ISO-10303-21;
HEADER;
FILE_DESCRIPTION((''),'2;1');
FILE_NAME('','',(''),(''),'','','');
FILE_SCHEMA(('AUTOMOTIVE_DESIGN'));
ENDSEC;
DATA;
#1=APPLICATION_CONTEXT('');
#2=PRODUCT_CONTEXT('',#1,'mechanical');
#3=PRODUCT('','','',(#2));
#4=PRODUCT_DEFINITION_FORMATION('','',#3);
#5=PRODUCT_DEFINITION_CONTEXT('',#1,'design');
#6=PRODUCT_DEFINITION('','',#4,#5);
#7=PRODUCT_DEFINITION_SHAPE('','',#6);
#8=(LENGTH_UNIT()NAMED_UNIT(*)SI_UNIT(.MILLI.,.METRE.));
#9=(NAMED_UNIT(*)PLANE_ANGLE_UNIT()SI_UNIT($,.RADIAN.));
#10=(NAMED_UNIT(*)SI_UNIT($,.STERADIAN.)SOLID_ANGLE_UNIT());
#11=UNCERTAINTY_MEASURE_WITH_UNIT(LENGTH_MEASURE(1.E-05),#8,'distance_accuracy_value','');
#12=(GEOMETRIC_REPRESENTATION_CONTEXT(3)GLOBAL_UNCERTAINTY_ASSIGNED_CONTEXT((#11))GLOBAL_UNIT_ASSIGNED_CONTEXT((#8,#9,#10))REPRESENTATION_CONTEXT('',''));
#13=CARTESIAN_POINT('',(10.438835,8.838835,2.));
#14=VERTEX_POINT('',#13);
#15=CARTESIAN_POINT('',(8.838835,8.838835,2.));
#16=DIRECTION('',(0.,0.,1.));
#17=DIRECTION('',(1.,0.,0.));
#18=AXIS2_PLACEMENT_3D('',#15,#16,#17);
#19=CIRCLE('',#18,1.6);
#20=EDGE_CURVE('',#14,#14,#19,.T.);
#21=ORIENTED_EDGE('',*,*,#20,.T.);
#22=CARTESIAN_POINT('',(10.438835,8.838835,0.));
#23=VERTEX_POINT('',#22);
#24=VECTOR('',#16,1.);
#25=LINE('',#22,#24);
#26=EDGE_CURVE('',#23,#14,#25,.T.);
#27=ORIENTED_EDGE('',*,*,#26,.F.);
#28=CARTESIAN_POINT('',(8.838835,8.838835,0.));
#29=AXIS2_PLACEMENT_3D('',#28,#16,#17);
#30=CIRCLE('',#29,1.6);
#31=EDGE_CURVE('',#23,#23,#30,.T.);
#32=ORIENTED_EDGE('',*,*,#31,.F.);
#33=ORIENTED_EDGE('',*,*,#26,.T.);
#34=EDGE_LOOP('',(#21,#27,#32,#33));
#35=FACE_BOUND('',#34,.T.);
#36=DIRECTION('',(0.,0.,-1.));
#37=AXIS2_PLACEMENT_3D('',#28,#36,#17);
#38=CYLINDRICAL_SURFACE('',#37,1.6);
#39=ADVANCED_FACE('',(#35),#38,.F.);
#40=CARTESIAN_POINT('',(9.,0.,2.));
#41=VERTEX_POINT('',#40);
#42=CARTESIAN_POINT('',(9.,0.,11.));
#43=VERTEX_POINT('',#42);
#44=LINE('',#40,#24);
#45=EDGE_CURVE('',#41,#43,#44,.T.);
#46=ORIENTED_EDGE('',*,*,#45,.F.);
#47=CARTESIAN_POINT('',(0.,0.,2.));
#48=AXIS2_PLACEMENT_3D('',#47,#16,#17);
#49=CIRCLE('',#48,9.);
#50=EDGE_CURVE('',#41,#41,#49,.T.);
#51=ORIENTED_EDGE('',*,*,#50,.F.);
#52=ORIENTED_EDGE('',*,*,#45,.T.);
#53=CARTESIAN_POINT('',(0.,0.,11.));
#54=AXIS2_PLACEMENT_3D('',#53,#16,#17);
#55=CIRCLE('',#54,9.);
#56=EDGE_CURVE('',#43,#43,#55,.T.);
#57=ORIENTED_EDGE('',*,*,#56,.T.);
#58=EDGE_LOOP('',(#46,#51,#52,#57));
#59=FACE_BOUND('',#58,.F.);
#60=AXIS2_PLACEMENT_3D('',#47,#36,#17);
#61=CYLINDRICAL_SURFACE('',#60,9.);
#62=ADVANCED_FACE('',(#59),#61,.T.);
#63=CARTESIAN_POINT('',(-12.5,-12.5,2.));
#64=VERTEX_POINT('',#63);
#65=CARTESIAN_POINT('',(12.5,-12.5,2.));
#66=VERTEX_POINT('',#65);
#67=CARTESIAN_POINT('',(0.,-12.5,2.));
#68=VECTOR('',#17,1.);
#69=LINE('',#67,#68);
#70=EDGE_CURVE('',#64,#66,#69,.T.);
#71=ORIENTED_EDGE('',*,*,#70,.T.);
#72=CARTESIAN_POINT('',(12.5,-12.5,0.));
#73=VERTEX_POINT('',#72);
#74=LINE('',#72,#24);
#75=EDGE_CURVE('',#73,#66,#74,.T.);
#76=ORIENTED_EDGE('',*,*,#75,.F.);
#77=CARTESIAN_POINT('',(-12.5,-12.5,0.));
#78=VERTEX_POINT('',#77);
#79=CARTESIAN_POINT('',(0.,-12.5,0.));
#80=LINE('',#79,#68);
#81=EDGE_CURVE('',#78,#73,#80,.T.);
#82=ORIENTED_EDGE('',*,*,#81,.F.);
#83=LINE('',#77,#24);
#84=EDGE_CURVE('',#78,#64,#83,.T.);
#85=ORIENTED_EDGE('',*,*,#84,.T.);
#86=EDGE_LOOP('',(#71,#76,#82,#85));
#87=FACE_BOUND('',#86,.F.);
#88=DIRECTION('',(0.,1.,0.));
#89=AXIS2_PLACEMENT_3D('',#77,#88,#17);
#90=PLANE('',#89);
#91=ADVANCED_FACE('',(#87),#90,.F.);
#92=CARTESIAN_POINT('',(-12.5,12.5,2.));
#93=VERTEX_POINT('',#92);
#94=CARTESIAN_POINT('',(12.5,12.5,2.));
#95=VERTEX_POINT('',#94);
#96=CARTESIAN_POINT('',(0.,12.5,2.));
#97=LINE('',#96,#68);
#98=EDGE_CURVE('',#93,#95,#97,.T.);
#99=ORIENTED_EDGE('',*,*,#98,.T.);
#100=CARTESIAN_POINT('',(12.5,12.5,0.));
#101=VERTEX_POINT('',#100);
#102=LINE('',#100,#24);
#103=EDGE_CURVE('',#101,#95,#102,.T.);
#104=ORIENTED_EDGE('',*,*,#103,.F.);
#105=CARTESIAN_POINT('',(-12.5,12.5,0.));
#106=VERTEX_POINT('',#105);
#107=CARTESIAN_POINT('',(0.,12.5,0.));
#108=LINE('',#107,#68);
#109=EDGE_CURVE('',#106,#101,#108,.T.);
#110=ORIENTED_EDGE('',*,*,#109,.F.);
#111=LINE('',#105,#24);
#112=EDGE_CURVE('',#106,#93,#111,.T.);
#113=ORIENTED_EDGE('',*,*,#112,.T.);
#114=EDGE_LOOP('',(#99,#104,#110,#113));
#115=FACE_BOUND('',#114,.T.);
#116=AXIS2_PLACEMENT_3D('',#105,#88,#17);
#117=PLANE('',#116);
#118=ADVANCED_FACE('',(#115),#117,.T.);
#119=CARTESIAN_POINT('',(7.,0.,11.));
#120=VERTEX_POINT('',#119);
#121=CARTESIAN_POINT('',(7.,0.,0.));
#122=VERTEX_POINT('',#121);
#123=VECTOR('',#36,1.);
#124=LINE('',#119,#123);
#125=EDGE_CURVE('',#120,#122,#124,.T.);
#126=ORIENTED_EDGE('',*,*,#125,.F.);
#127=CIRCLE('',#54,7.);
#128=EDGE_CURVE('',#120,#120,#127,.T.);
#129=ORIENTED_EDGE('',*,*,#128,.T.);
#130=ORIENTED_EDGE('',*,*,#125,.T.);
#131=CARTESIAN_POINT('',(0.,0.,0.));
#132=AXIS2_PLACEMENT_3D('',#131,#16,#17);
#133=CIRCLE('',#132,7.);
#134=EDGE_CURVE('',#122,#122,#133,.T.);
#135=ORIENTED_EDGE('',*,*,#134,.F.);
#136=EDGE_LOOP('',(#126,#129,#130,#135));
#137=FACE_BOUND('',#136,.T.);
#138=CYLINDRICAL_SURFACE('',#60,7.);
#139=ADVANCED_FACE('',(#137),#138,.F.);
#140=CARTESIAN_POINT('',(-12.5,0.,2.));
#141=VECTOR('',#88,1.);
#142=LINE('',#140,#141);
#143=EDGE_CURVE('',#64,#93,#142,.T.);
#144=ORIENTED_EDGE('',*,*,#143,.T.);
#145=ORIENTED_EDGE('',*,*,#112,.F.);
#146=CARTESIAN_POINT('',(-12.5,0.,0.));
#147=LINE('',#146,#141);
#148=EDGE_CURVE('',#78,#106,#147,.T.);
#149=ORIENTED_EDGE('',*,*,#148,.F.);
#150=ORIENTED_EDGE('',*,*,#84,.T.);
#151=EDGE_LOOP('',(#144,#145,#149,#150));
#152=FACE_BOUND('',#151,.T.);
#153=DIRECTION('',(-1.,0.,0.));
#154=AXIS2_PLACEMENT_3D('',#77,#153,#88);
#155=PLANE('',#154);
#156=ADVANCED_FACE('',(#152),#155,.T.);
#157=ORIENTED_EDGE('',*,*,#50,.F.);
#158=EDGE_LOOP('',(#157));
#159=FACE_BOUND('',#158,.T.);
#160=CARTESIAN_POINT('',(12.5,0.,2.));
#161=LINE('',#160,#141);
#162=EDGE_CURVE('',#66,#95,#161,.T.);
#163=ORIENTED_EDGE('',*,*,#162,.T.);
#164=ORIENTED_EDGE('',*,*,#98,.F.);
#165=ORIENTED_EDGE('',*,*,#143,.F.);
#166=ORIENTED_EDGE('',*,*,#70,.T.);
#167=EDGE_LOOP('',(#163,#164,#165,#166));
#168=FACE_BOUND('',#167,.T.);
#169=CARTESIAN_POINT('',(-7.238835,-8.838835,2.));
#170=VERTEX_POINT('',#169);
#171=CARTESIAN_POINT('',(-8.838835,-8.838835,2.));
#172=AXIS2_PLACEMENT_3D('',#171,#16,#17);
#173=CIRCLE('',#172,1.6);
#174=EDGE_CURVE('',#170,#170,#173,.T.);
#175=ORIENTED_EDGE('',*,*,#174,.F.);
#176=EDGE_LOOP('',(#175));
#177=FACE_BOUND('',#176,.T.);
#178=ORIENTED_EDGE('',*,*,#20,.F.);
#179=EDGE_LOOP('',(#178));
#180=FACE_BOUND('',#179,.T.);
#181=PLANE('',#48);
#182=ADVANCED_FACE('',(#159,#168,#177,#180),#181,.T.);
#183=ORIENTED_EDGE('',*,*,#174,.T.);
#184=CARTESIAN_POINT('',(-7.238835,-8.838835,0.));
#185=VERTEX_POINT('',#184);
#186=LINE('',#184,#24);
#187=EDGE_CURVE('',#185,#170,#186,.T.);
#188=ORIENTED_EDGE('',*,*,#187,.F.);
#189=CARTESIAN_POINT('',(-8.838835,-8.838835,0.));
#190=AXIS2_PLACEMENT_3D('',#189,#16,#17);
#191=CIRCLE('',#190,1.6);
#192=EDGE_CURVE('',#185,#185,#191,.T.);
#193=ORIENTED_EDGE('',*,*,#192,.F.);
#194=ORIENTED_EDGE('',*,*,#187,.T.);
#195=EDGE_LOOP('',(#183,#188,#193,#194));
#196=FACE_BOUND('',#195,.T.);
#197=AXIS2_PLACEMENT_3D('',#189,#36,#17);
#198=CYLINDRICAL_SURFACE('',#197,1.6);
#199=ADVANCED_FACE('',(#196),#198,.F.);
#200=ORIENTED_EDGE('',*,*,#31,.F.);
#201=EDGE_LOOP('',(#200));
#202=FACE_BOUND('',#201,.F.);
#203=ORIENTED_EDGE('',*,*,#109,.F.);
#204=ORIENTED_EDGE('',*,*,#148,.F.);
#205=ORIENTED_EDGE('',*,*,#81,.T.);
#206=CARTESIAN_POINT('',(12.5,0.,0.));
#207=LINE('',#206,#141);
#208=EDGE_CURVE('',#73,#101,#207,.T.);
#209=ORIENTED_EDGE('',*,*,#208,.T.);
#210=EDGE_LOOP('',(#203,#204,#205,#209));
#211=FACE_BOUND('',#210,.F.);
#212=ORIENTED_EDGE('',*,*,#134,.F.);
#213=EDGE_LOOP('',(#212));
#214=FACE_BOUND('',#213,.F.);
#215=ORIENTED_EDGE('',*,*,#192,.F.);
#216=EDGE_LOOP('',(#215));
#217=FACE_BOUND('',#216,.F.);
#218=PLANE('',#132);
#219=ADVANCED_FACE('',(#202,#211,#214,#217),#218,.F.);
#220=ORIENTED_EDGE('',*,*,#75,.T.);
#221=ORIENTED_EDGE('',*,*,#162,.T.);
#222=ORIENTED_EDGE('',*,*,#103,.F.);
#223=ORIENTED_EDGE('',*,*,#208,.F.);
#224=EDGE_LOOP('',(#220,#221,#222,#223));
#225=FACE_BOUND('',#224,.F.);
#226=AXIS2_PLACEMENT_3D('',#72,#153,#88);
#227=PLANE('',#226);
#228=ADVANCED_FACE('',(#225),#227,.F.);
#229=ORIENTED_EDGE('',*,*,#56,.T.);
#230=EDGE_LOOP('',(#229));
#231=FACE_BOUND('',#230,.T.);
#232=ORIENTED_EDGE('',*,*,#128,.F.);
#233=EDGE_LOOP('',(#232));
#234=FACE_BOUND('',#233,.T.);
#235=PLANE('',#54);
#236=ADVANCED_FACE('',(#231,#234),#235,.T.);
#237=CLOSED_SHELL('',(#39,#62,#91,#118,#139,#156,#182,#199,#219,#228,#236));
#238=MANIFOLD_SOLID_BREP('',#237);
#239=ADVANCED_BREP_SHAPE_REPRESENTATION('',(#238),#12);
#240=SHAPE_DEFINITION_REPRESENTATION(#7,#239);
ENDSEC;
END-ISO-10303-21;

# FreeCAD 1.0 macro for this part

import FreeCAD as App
import Part
import Sketcher
from FreeCAD import Vector
Q = App.Units.Quantity

doc = App.newDocument("Part")
body = doc.addObject("PartDesign::Body", "Body")

# Sketch on XY plane
sketch1 = body.newObject("Sketcher::SketchObject", "Sketch")
sketch1.AttachmentSupport = (doc.getObject("XY_Plane"), [""])
sketch1.MapMode = "FlatFace"
sketch1.addGeometry([
    Part.LineSegment(Vector(-12.5, 12.5, 0), Vector(-12.5, -12.5, 0)),  # 0
    Part.LineSegment(Vector(-12.5, -12.5, 0), Vector(12.5, -12.5, 0)),  # 1
    Part.LineSegment(Vector(12.5, -12.5, 0), Vector(12.5, 12.5, 0)),  # 2
    Part.LineSegment(Vector(12.5, 12.5, 0), Vector(-12.5, 12.5, 0)),  # 3
    Part.Circle(Vector(-8.8, -8.8, 0), Vector(0, 0, 1), 1.6),  # 4
    Part.Circle(Vector(0, 0, 0), Vector(0, 0, 1), 7),  # 5
    Part.Circle(Vector(8.8, 8.8, 0), Vector(0, 0, 1), 1.6),  # 6
], False)
sketch1.addConstraint([
    Sketcher.Constraint("Coincident", 0, 2, 1, 1),
    Sketcher.Constraint("Coincident", 1, 2, 2, 1),
    Sketcher.Constraint("Coincident", 2, 2, 3, 1),
    Sketcher.Constraint("Coincident", 3, 2, 0, 1),
    Sketcher.Constraint("Vertical", 0),
    Sketcher.Constraint("Horizontal", 1),
    Sketcher.Constraint("Vertical", 2),
    Sketcher.Constraint("Horizontal", 3),
    Sketcher.Constraint("Coincident", 5, 3, -1, 1),
    Sketcher.Constraint("Equal", 4, 6),
    Sketcher.Constraint("Symmetric", 4, 3, 6, 3, -1, 1),
    Sketcher.Constraint("Symmetric", 0, 2, 2, 2, -1, 1),
    Sketcher.Constraint("Equal", 3, 0),
    Sketcher.Constraint("Diameter", 5, Q("14 mm")),
    Sketcher.Constraint("Diameter", 4, Q("3.2 mm")),
    Sketcher.Constraint("DistanceX", 1, 1, 1, 2, Q("25 mm")),
    Sketcher.Constraint("DistanceX", 4, 3, 6, 3, Q("17.67767 mm")),
    Sketcher.Constraint("DistanceY", 4, 3, 6, 3, Q("17.67767 mm")),
])
pad1 = body.newObject("PartDesign::Pad", "Pad")
pad1.Profile = sketch1
pad1.Length = 2

# Sketch on XY plane
sketch2 = body.newObject("Sketcher::SketchObject", "Sketch001")
sketch2.AttachmentSupport = (doc.getObject("XY_Plane"), [""])
sketch2.MapMode = "FlatFace"
sketch2.AttachmentOffset = App.Placement(Vector(0, 0, 2), App.Rotation())
sketch2.addGeometry([
    Part.Circle(Vector(0, 0, 0), Vector(0, 0, 1), 9),
    Part.Circle(Vector(0, 0, 0), Vector(0, 0, 1), 7),
], False)
sketch2.addConstraint([
    Sketcher.Constraint("Coincident", 0, 3, -1, 1),
    Sketcher.Constraint("Coincident", 1, 3, -1, 1),
    Sketcher.Constraint("Diameter", 0, Q("18 mm")),
    Sketcher.Constraint("Diameter", 1, Q("14 mm")),
])
pad2 = body.newObject("PartDesign::Pad", "Pad001")
pad2.Profile = sketch2
pad2.Length = 9

doc.recompute()
